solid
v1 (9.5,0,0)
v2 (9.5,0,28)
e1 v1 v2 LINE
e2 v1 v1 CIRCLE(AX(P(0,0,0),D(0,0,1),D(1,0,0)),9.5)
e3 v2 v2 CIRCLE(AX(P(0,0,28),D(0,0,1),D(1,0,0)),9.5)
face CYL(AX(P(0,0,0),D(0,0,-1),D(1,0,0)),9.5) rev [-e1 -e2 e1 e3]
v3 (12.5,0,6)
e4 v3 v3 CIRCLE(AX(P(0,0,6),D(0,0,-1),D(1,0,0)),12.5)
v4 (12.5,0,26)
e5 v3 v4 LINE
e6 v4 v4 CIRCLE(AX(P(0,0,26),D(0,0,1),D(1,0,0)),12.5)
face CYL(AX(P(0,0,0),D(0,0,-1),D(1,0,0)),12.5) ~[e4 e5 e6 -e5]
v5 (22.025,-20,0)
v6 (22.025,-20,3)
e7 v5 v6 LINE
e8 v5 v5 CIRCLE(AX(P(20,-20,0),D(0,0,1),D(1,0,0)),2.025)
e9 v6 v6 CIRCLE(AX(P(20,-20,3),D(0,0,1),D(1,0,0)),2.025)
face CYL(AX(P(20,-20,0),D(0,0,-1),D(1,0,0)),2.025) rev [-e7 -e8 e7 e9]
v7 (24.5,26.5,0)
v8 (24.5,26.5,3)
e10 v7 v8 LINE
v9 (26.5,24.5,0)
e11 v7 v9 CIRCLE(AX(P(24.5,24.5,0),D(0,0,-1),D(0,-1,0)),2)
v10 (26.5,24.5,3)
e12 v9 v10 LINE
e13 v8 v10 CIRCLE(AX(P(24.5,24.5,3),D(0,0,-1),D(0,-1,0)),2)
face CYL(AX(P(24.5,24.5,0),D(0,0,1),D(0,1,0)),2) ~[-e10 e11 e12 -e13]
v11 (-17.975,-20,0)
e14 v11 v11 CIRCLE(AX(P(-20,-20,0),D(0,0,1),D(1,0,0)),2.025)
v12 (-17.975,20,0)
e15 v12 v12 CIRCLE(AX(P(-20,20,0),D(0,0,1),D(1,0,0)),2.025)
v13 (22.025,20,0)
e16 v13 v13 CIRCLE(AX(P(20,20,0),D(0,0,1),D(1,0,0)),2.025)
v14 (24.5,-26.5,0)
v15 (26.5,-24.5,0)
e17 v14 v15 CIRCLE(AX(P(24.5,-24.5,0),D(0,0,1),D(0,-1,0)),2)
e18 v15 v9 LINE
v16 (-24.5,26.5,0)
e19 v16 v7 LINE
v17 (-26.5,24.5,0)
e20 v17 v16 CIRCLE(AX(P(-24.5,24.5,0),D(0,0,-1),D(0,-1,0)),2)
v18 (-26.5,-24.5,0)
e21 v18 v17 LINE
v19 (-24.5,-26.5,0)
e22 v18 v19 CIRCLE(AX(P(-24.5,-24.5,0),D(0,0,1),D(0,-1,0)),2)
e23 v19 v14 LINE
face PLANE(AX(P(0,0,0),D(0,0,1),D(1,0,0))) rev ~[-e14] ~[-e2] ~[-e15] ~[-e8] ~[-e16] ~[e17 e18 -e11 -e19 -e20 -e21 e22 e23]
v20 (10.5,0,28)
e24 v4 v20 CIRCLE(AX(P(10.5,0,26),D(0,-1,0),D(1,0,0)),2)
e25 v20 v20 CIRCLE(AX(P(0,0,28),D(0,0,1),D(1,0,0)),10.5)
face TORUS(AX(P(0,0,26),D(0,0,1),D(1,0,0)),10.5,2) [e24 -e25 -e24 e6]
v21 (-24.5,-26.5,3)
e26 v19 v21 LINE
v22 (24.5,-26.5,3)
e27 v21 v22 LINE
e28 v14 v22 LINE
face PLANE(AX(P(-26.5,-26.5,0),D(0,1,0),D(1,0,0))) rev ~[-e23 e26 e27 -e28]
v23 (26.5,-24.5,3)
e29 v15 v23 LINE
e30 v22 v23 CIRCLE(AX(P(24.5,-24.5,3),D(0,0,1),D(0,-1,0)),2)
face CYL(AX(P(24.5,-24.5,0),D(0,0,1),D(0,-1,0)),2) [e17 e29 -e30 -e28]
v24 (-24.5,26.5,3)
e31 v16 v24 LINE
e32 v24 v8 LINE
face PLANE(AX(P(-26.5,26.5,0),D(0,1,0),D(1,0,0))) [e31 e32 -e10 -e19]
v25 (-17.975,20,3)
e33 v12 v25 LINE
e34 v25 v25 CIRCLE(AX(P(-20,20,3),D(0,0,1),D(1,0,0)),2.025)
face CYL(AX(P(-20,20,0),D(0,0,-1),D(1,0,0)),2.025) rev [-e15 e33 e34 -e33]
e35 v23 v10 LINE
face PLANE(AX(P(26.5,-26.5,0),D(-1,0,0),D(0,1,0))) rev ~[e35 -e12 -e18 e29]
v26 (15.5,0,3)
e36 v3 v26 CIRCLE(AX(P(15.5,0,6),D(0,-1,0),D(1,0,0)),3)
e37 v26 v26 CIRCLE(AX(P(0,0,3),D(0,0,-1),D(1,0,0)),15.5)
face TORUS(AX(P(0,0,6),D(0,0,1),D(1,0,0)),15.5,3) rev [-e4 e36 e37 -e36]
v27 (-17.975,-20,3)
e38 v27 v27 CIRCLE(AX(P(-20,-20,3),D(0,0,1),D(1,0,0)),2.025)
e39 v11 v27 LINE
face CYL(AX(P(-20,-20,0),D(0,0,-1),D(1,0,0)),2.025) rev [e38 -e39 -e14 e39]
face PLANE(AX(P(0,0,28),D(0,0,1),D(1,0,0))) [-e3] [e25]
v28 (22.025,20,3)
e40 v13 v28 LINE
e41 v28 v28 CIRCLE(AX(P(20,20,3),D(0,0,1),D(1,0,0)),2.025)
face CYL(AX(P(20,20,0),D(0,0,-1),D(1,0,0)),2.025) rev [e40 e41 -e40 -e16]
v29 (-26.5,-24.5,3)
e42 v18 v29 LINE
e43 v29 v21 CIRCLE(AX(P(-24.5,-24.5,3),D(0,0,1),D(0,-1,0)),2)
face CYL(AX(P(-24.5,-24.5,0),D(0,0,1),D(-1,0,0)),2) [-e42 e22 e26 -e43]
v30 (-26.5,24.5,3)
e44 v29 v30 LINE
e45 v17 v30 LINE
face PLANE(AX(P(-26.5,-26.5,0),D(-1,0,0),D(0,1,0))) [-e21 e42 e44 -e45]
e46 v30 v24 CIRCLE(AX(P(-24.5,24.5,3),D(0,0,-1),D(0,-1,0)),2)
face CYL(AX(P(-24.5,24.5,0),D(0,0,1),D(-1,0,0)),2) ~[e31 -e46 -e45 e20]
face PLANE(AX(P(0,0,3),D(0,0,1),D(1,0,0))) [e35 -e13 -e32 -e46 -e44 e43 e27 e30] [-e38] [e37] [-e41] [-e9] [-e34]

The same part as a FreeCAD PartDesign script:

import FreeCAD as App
import Part
import Sketcher

V = App.Vector


def edges_at(feature, points):
    """Names of the edges that pass closest to the given points."""
    edges = feature.Shape.Edges
    near = lambda p: min(range(len(edges)), key=lambda i: edges[i].distToShape(Part.Vertex(*p))[0])
    return sorted({f"Edge{near(p) + 1}" for p in points})

doc = App.newDocument("Part")
body = doc.addObject("PartDesign::Body", "Body")

# Sketch on XY plane
sketch1 = body.newObject("Sketcher::SketchObject", "Sketch")
sketch1.AttachmentSupport = (doc.getObject("XY_Plane"), [""])
sketch1.MapMode = "FlatFace"
sketch1.addGeometry([
    Part.LineSegment(V(-26.5, 26.5, 0), V(-26.5, -26.5, 0)),  # 0
    Part.LineSegment(V(-26.5, -26.5, 0), V(26.5, -26.5, 0)),  # 1
    Part.LineSegment(V(26.5, -26.5, 0), V(26.5, 26.5, 0)),  # 2
    Part.LineSegment(V(26.5, 26.5, 0), V(-26.5, 26.5, 0)),  # 3
    Part.Circle(V(-20, -20, 0), V(0, 0, 1), 2),  # 4
    Part.Circle(V(20, -20, 0), V(0, 0, 1), 2),  # 5
    Part.Circle(V(-20, 20, 0), V(0, 0, 1), 2),  # 6
    Part.Circle(V(0, 0, 0), V(0, 0, 1), 9.5),  # 7
    Part.Circle(V(20, 20, 0), V(0, 0, 1), 2),  # 8
], False)
sketch1.addConstraint([
    Sketcher.Constraint("Coincident", 0, 2, 1, 1),
    Sketcher.Constraint("Coincident", 1, 2, 2, 1),
    Sketcher.Constraint("Coincident", 2, 2, 3, 1),
    Sketcher.Constraint("Coincident", 3, 2, 0, 1),
    Sketcher.Constraint("Vertical", 0),
    Sketcher.Constraint("Horizontal", 1),
    Sketcher.Constraint("Vertical", 2),
    Sketcher.Constraint("Horizontal", 3),
    Sketcher.Constraint("Coincident", 7, 3, -1, 1),
    Sketcher.Constraint("Equal", 4, 5),
    Sketcher.Constraint("Equal", 5, 6),
    Sketcher.Constraint("Equal", 6, 8),
    Sketcher.Constraint("Symmetric", 5, 3, 6, 3, -1, 1),
    Sketcher.Constraint("Symmetric", 4, 3, 8, 3, -1, 1),
    Sketcher.Constraint("Symmetric", 0, 2, 2, 2, -1, 1),
    Sketcher.Constraint("Symmetric", 4, 3, 5, 3, -2),
    Sketcher.Constraint("Equal", 3, 0),
    Sketcher.Constraint("Diameter", 7, 19.0),
    Sketcher.Constraint("Diameter", 4, 4.05),
    Sketcher.Constraint("DistanceX", 1, 1, 1, 2, 53.0),
    Sketcher.Constraint("DistanceX", 4, 3, -1, 1, 20.0),
    Sketcher.Constraint("DistanceY", 4, 3, -1, 1, 20.0),
])
pad1 = body.newObject("PartDesign::Pad", "Pad")
pad1.Profile = sketch1
pad1.Length = 3

# Sketch on XY plane
sketch2 = body.newObject("Sketcher::SketchObject", "Sketch001")
sketch2.AttachmentSupport = (doc.getObject("XY_Plane"), [""])
sketch2.MapMode = "FlatFace"
sketch2.addGeometry([
    Part.Circle(V(0, 0, 0), V(0, 0, 1), 12),
    Part.Circle(V(0, 0, 0), V(0, 0, 1), 10),
], False)
sketch2.addConstraint([
    Sketcher.Constraint("Coincident", 0, 3, -1, 1),
    Sketcher.Constraint("Coincident", 1, 3, -1, 1),
    Sketcher.Constraint("Diameter", 0, 25.0),
    Sketcher.Constraint("Diameter", 1, 19.0),
])
pad2 = body.newObject("PartDesign::Pad", "Pad001")
pad2.Profile = sketch2
pad2.Length = 28
doc.recompute()

fillet = body.newObject("PartDesign::Fillet", "Fillet")
fillet.Base = (pad2, edges_at(pad2, [(-12.5, 0, 28)]))
fillet.Radius = 2
doc.recompute()

fillet2 = body.newObject("PartDesign::Fillet", "Fillet001")
fillet2.Base = (fillet, edges_at(fillet, [(-12.5, 0, 3)]))
fillet2.Radius = 3
doc.recompute()

fillet3 = body.newObject("PartDesign::Fillet", "Fillet002")
fillet3.Base = (fillet2, edges_at(fillet2, [
    (-26.5, -26.5, 1.5),
    (26.5, -26.5, 1.5),
    (26.5, 26.5, 1.5),
    (-26.5, 26.5, 1.5),
]))
fillet3.Radius = 2

doc.recompute()
